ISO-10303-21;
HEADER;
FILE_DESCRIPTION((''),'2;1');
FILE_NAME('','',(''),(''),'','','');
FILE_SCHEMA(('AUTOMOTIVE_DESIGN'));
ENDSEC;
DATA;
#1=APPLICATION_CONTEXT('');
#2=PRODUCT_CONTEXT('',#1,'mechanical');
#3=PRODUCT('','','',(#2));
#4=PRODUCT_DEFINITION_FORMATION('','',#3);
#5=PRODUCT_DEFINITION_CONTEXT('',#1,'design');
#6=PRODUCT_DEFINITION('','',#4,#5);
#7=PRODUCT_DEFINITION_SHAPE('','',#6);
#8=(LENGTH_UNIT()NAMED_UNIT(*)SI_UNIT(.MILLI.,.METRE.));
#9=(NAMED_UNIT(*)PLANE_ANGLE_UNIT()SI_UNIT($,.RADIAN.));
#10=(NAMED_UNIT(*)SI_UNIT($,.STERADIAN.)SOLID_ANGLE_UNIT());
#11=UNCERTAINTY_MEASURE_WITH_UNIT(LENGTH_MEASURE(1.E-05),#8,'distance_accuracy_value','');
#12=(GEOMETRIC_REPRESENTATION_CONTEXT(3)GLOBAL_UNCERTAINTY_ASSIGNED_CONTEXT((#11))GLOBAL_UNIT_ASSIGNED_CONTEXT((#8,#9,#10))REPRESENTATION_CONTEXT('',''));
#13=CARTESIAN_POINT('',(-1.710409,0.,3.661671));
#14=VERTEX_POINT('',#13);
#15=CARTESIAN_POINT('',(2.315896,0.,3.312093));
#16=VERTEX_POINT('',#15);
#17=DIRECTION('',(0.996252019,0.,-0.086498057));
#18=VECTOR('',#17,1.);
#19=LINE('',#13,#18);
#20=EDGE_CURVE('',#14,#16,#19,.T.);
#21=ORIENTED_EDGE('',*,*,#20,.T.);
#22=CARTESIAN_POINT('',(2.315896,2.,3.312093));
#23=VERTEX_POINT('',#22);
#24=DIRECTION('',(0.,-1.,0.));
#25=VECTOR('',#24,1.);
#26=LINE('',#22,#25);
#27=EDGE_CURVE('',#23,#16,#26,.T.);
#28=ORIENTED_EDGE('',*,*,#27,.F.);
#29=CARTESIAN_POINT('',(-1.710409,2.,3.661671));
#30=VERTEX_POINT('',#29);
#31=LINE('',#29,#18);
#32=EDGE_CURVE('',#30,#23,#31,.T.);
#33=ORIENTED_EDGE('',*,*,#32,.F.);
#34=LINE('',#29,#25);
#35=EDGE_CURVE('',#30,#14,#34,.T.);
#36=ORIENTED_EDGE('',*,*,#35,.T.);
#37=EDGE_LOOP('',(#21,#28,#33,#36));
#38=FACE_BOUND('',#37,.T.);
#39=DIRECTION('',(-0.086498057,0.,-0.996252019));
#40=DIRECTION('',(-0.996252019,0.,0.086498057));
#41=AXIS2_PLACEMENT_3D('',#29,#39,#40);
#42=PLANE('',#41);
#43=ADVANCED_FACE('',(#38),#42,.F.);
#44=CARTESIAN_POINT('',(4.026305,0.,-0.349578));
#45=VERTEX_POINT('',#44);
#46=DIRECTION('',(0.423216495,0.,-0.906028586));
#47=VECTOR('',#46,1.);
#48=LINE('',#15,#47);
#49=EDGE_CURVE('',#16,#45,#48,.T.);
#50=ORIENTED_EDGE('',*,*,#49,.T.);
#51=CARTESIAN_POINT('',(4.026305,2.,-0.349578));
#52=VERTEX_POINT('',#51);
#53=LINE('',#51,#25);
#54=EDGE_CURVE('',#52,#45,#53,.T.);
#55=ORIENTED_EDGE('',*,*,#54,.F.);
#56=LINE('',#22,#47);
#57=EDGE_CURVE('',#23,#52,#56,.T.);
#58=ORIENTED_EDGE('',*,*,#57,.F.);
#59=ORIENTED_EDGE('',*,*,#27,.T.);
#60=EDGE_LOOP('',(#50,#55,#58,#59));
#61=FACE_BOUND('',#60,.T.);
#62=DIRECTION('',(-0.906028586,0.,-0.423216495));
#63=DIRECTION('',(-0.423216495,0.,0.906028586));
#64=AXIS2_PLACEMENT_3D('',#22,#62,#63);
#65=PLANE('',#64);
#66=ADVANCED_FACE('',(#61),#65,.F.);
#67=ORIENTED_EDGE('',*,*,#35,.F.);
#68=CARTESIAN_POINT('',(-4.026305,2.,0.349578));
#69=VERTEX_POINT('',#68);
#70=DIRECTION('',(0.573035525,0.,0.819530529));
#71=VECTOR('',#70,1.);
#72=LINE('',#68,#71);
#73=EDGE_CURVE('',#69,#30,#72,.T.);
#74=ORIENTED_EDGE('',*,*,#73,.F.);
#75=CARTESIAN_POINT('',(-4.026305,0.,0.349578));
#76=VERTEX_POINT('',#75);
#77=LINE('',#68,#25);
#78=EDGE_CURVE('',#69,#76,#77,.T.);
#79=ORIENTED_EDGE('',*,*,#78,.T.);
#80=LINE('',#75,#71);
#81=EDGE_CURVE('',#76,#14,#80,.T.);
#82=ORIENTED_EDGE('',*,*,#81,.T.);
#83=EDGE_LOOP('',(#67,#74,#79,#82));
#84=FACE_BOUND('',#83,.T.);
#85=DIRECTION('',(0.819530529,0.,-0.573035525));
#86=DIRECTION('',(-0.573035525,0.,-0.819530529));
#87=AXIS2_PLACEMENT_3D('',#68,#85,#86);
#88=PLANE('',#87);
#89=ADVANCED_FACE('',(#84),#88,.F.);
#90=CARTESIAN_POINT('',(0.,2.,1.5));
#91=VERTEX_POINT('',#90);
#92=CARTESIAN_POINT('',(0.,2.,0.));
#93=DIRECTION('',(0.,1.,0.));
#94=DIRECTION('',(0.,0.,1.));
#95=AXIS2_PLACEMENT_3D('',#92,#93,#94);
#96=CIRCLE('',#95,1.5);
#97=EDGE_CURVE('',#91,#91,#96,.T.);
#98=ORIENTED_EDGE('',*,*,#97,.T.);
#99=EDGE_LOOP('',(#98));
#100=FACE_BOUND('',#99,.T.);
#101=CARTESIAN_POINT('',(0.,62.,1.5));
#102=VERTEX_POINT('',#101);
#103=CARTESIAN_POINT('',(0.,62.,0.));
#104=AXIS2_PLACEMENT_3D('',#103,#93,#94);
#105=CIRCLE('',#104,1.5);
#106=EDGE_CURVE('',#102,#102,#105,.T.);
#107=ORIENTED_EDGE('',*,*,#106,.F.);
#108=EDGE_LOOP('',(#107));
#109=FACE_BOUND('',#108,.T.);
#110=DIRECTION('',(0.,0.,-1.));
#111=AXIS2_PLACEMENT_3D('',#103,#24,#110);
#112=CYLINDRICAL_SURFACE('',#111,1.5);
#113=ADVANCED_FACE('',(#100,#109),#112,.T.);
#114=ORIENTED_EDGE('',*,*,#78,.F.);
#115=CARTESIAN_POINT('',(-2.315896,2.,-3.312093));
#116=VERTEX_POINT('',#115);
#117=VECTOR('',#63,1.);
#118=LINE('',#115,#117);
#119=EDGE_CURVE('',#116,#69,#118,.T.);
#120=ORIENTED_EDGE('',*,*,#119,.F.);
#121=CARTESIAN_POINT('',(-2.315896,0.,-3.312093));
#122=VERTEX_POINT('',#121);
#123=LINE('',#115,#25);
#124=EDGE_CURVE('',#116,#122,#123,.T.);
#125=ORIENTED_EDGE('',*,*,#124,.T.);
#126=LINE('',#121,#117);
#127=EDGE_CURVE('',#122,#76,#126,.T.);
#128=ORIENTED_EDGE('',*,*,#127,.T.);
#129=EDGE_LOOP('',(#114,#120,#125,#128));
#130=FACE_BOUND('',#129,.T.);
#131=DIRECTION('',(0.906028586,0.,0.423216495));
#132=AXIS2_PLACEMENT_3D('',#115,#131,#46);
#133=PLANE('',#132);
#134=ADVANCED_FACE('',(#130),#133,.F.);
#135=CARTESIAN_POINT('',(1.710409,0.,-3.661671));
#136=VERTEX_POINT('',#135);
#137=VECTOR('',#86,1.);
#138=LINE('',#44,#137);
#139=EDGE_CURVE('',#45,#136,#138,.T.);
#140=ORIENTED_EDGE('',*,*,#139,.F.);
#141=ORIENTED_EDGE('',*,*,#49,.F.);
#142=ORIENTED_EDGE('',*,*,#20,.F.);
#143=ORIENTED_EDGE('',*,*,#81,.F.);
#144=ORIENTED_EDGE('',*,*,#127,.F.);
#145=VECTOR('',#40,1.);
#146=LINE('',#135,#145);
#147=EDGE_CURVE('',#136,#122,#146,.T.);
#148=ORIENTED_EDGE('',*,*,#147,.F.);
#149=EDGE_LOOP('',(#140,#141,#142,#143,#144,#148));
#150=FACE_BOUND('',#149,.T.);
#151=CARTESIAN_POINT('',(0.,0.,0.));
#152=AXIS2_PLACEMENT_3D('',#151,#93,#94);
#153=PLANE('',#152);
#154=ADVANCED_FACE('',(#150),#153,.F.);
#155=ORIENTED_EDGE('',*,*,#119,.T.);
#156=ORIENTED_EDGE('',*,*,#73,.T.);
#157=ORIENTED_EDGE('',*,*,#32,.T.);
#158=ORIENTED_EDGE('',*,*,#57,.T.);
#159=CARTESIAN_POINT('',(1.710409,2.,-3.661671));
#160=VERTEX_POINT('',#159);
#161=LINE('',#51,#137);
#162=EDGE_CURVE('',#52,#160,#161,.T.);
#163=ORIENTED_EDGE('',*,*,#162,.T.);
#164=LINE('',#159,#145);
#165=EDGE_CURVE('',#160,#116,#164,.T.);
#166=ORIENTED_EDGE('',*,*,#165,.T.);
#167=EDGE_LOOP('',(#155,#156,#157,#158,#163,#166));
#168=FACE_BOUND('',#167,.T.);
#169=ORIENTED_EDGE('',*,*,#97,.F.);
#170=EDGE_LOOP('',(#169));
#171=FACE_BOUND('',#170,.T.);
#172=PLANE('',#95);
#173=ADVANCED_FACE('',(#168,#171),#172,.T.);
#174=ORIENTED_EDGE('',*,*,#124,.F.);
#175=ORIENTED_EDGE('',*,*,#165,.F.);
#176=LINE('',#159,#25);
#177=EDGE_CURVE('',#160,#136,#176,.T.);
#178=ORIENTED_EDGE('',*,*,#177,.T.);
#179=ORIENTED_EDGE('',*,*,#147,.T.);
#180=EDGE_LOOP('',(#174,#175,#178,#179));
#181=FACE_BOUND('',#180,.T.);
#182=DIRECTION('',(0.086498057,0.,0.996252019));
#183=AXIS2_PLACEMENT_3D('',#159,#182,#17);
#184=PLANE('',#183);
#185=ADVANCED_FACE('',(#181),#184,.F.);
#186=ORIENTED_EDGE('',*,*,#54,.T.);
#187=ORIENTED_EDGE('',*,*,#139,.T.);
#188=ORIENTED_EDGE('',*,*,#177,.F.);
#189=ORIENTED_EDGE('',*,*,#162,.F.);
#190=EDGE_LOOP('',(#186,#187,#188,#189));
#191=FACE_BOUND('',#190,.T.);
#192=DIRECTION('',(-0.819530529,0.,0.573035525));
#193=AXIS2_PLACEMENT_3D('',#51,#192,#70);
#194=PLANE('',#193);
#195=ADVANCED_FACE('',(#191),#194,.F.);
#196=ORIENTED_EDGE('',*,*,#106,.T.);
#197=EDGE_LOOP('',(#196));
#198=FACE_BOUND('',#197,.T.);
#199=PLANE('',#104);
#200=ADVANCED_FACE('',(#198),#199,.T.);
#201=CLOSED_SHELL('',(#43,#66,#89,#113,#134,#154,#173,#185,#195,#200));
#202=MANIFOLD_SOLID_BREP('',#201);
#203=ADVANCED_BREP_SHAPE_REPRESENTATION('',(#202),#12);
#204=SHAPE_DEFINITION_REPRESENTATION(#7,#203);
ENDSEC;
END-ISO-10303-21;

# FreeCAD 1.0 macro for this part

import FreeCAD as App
import Part
import Sketcher


def add_polygon(sketch, points):
    """Adds a closed chain of lines whose ends are joined by coincident constraints."""
    first, n = sketch.GeometryCount, len(points)
    for a, b in zip(points, points[1:] + points[:1]):
        sketch.addGeometry(Part.LineSegment(App.Vector(*a, 0), App.Vector(*b, 0)), False)
    for i in range(n):
        sketch.addConstraint(Sketcher.Constraint("Coincident", first + i, 2, first + (i + 1) % n, 1))

doc = App.newDocument("Part")
body = doc.addObject("PartDesign::Body", "Body")

# Sketch on XZ plane
sketch1 = body.newObject("Sketcher::SketchObject", "Sketch")
sketch1.AttachmentSupport = (doc.getObject("XZ_Plane"), [""])
sketch1.MapMode = "FlatFace"
add_polygon(sketch1, [(2.3, 3.3), (4, -0.3), (1.7, -3.7), (-2.3, -3.3), (-4, 0.3), (-1.7, 3.7)])  # lines 0-5
sketch1.addConstraint([
    Sketcher.Constraint("Symmetric", 0, 2, 3, 2, -1, 1),
    Sketcher.Constraint("Symmetric", 1, 2, 4, 2, -1, 1),
    Sketcher.Constraint("Symmetric", 2, 2, 5, 2, -1, 1),
    Sketcher.Constraint("Equal", 0, 1),
    Sketcher.Constraint("Equal", 1, 2),
    Sketcher.Constraint("DistanceX", 2, 2, 0, 2, 6.3422),
    Sketcher.Constraint("Distance", 0, 4.041452),
    Sketcher.Constraint("DistanceX", -1, 1, 1, 2, 1.710409),
    Sketcher.Constraint("DistanceY", 1, 2, -1, 1, 3.661671),
])
pad1 = body.newObject("PartDesign::Pad", "Pad")
pad1.Profile = sketch1
pad1.Length = 2
pad1.Reversed = True

# Sketch on XZ plane
sketch2 = body.newObject("Sketcher::SketchObject", "Sketch001")
sketch2.AttachmentSupport = (doc.getObject("XZ_Plane"), [""])
sketch2.MapMode = "FlatFace"
sketch2.AttachmentOffset = App.Placement(App.Vector(0, 0, -2), App.Rotation())
sketch2.addGeometry(Part.Circle(App.Vector(0, 0, 0), App.Vector(0, 0, 1), 1.5), False)
sketch2.addConstraint([
    Sketcher.Constraint("Coincident", 0, 3, -1, 1),
    Sketcher.Constraint("Diameter", 0, 3.0),
])
pad2 = body.newObject("PartDesign::Pad", "Pad001")
pad2.Profile = sketch2
pad2.Length = 60
pad2.Reversed = True

doc.recompute()
